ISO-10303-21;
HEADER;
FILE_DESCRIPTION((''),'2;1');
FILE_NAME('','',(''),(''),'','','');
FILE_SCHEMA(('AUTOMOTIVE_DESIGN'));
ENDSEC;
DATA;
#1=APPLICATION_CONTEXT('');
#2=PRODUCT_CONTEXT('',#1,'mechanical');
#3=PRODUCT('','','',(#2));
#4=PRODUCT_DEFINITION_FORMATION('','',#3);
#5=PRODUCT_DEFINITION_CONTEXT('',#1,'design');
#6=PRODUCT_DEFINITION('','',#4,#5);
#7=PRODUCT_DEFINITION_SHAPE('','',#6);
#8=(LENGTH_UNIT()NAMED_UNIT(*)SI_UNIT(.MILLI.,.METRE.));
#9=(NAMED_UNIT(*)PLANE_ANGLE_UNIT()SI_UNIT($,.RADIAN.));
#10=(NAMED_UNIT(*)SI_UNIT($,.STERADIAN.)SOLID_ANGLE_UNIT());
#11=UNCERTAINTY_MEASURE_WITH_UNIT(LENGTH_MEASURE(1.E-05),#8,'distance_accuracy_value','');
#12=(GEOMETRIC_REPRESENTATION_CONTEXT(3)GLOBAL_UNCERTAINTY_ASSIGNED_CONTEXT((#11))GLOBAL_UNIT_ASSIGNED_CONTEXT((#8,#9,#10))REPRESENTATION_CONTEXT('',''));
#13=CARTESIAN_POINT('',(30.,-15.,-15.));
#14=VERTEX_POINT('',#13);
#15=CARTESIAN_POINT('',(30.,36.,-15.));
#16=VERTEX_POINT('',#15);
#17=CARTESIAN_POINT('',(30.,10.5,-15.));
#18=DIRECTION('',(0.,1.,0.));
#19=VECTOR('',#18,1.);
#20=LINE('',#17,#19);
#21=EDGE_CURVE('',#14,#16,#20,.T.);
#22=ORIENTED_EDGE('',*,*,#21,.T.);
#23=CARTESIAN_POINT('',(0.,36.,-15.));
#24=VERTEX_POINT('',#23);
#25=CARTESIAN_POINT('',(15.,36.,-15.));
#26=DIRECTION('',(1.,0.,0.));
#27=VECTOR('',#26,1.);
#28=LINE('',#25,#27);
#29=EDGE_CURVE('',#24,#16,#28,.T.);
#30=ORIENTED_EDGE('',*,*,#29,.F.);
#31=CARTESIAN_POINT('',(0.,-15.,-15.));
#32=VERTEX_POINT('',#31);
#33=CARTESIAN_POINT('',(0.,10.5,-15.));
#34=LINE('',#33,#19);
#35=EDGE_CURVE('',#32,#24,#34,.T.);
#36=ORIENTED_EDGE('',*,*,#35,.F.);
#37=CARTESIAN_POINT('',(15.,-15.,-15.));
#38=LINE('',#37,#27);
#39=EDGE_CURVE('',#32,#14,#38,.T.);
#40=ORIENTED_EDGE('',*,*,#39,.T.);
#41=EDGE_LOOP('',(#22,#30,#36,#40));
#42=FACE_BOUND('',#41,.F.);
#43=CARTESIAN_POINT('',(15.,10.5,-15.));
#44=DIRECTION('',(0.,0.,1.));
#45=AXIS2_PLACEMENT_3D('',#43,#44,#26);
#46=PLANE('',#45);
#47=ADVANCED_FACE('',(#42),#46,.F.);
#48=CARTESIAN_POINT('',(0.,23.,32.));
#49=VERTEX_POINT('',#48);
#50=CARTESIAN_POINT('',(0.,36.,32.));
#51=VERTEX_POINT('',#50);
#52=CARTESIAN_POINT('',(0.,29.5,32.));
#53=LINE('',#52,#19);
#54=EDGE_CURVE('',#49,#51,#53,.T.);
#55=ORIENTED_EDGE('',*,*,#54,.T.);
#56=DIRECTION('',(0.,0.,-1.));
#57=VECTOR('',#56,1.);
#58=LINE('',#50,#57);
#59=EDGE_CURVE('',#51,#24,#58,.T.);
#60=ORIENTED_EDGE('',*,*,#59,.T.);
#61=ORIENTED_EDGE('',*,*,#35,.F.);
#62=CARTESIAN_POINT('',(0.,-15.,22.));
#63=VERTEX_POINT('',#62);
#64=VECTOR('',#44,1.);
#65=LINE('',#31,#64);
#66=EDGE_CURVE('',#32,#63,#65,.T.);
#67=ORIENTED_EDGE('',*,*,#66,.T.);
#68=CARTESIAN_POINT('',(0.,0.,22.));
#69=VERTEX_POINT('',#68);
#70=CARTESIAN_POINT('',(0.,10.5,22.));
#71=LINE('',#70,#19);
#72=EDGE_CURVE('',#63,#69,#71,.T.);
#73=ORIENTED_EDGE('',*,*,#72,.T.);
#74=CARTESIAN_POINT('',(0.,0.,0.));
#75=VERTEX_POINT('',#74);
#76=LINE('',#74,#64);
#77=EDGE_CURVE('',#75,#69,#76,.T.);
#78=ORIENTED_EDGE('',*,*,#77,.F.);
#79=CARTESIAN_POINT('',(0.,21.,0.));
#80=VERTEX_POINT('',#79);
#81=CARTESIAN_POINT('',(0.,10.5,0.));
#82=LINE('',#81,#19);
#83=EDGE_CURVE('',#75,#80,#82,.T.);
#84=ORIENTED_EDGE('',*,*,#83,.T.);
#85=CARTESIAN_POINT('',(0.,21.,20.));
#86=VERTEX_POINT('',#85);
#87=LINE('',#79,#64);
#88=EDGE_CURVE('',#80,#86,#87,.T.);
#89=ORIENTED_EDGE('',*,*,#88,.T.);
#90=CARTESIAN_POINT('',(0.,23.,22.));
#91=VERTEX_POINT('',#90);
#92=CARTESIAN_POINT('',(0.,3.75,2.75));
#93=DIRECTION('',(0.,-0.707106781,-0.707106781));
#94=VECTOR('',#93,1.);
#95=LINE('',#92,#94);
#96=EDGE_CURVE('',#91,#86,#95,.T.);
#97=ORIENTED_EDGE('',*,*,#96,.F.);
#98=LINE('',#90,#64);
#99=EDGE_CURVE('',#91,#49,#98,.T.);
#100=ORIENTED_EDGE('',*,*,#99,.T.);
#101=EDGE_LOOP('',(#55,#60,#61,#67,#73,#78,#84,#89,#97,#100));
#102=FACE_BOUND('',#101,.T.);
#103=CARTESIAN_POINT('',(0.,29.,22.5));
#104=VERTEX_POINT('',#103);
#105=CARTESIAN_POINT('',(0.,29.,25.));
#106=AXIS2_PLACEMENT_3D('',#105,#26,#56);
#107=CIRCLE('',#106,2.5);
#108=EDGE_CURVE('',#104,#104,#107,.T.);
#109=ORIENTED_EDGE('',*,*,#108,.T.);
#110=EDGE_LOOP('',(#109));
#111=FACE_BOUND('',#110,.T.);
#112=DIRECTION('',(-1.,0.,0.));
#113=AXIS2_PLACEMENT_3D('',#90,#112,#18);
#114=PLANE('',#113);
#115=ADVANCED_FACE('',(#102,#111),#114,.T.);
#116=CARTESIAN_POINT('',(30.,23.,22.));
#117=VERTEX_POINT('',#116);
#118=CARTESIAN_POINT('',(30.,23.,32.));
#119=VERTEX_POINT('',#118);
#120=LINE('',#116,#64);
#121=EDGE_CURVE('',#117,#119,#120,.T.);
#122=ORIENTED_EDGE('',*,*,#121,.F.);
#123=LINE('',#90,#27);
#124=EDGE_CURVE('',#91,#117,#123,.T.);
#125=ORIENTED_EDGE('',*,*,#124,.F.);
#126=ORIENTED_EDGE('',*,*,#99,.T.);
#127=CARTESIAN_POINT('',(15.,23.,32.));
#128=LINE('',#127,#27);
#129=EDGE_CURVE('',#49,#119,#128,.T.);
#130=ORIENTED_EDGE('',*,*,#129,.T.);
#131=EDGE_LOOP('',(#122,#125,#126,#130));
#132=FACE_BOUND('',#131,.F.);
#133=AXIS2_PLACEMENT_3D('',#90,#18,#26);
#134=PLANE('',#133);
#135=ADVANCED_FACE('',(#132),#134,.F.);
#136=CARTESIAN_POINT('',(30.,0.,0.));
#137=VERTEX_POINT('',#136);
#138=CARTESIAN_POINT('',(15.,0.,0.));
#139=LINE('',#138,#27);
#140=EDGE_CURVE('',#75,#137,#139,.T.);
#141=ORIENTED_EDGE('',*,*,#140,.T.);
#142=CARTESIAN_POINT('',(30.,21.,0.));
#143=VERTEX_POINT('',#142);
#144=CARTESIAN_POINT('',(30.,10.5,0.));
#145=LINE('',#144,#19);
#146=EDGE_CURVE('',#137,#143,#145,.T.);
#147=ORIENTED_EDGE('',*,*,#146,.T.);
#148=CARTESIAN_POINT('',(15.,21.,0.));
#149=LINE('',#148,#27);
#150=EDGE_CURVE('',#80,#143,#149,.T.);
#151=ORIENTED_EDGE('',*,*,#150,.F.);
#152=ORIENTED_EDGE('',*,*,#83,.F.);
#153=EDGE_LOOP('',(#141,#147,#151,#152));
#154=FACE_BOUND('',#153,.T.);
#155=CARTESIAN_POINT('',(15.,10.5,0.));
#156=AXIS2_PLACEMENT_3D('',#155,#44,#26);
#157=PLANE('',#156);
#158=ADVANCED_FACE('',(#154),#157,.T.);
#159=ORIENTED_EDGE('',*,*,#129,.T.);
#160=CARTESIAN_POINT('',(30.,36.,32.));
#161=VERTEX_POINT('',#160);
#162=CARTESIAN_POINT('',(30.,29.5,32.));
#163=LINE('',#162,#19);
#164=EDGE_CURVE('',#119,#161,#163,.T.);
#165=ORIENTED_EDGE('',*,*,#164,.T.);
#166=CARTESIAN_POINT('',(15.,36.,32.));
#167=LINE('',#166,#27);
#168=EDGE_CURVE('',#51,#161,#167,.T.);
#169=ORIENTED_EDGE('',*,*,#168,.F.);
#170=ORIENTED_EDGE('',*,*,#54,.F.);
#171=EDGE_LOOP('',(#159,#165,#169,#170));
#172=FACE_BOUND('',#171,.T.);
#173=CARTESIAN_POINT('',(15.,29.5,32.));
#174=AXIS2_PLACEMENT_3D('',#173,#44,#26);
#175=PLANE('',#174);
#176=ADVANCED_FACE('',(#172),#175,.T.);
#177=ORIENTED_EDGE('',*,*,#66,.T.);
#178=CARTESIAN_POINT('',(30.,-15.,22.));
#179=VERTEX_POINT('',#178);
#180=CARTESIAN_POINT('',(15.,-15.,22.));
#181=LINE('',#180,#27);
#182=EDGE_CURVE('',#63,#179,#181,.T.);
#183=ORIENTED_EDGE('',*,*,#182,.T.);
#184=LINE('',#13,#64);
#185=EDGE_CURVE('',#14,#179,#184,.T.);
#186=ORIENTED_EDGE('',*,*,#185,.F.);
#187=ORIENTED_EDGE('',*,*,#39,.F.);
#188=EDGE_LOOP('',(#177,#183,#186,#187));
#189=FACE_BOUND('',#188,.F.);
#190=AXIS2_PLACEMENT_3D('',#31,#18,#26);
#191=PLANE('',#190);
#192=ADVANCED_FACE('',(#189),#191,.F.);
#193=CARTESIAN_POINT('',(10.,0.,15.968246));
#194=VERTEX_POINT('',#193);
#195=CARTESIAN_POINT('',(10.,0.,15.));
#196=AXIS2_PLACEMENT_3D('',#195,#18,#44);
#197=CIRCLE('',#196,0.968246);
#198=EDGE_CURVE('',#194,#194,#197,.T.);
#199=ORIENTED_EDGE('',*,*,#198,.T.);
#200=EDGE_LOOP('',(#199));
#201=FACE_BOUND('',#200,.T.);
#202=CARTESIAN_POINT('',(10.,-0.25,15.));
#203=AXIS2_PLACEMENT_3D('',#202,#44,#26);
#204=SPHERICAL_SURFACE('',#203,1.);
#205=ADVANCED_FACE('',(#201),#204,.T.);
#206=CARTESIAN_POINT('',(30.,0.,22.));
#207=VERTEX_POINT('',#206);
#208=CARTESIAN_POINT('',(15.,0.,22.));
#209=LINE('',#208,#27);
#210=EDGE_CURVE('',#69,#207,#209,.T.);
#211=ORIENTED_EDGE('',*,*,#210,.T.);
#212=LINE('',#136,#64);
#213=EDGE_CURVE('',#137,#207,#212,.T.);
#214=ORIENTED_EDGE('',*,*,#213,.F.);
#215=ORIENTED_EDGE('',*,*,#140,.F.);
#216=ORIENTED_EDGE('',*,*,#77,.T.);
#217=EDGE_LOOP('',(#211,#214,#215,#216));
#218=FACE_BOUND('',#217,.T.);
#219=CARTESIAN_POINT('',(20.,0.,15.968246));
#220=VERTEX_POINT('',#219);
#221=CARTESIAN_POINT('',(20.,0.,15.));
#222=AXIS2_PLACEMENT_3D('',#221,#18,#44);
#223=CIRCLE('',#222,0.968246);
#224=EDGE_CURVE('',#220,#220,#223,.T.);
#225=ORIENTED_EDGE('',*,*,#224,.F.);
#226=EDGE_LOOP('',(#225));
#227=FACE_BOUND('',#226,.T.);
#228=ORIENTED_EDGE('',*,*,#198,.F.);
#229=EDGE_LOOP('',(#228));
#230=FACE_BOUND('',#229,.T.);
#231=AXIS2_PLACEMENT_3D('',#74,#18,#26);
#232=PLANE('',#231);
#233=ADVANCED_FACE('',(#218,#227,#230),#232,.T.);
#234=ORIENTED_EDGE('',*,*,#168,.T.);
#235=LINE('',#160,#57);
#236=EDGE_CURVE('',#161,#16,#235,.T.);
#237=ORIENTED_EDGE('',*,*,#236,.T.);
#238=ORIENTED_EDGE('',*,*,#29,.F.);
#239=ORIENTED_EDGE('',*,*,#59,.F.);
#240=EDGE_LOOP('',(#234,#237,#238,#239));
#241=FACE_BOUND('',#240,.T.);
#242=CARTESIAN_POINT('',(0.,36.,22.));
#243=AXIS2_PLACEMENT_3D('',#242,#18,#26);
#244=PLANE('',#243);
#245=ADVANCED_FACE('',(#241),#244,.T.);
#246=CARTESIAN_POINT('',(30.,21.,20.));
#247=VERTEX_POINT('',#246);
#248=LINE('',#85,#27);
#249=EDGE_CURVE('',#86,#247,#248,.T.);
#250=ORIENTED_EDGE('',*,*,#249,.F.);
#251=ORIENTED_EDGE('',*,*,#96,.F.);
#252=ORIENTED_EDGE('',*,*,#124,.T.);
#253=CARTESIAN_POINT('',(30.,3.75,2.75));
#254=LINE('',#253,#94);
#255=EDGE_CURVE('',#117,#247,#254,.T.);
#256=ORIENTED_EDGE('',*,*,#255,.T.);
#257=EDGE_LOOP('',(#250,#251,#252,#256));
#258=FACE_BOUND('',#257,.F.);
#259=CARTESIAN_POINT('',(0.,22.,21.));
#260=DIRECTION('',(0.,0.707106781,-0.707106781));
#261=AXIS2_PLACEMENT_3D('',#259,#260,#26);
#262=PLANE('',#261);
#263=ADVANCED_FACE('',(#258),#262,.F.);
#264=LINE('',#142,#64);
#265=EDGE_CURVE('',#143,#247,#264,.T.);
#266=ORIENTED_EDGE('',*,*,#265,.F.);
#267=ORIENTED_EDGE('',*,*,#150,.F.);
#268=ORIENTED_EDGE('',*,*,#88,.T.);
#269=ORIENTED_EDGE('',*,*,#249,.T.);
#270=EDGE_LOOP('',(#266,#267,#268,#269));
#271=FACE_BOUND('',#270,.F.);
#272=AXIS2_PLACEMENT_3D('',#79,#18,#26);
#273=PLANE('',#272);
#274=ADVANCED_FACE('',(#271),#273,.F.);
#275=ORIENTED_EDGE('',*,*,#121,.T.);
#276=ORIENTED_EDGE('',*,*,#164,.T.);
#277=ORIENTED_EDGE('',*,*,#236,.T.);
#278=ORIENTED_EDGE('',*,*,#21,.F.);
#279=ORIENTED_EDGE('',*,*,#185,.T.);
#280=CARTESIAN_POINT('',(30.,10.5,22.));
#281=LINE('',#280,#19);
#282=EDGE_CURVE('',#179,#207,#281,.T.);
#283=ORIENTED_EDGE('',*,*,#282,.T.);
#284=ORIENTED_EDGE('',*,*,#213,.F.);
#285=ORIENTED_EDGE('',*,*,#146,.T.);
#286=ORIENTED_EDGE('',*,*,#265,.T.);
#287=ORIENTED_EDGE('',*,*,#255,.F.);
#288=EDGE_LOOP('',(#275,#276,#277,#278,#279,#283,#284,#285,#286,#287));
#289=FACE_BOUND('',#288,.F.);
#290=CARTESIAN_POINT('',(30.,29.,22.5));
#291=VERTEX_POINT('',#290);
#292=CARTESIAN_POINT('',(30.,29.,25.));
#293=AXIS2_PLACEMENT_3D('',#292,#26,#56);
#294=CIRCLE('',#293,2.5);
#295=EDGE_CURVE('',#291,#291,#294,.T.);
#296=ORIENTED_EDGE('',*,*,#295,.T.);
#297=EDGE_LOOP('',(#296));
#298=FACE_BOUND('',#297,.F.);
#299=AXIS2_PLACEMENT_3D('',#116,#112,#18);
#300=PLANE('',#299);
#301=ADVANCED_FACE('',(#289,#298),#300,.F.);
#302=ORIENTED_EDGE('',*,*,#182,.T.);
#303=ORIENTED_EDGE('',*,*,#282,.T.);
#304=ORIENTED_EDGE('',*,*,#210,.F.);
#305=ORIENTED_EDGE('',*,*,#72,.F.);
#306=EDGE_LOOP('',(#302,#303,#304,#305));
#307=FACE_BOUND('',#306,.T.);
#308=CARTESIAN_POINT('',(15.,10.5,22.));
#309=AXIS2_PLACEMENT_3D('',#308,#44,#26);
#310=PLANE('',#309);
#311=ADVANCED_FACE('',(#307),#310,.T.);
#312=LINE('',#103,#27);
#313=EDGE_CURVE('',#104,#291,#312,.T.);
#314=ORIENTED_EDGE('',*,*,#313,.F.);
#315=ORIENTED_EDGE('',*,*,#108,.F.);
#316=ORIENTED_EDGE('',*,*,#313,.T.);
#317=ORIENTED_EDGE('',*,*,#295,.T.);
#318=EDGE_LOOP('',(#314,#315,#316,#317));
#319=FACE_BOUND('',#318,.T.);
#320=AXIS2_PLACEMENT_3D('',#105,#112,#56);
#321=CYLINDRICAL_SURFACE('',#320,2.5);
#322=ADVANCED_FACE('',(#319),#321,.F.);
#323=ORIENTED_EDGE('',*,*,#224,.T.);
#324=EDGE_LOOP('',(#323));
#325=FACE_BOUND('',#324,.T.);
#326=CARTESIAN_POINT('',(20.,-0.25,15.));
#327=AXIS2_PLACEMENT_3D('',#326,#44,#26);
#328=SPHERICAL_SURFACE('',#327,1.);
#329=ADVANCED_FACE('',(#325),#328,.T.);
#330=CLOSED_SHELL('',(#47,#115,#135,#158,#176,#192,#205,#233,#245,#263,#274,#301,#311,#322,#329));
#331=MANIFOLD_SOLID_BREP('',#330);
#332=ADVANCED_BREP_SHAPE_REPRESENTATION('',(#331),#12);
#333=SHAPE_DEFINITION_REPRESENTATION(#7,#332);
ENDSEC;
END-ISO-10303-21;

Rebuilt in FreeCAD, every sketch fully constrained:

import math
import FreeCAD as App
import Part
import Sketcher
Q = App.Units.Quantity


def edges_at(feature, points):
    """Names of the edges that pass closest to the given points."""
    edges = feature.Shape.Edges
    near = lambda p: min(range(len(edges)), key=lambda i: edges[i].distToShape(Part.Vertex(*p))[0])
    return sorted({f"Edge{near(p) + 1}" for p in points})

doc = App.newDocument("Part")
body = doc.addObject("PartDesign::Body", "Body")

# Sketch on XZ plane
sketch1 = body.newObject("Sketcher::SketchObject", "Sketch")
sketch1.AttachmentSupport = (doc.getObject("XZ_Plane"), [""])
sketch1.MapMode = "FlatFace"
sketch1.AttachmentOffset = App.Placement(App.Vector(0, 0, 0.25), App.Rotation())
sketch1.addGeometry(Part.ArcOfCircle(Part.Circle(App.Vector(20, 15, 0), App.Vector(0, 0, 1), 1), math.radians(-90), math.radians(90)), False)
sketch1.addGeometry(Part.LineSegment(App.Vector(20, 16, 0), App.Vector(20, 14, 0)), False)
sketch1.addGeometry(Part.LineSegment(App.Vector(20, 14, 0), App.Vector(20, 16, 0)), True)  # axis
sketch1.addConstraint(Sketcher.Constraint("Coincident", 0, 1, 1, 2))
sketch1.addConstraint(Sketcher.Constraint("Coincident", 1, 1, 0, 2))
sketch1.addConstraint(Sketcher.Constraint("Vertical", 1))
sketch1.addConstraint(Sketcher.Constraint("Vertical", 2))
sketch1.addConstraint(Sketcher.Constraint("Coincident", 2, 1, 0, 1))
sketch1.addConstraint(Sketcher.Constraint("Equal", 1, 2))
sketch1.addConstraint(Sketcher.Constraint("Radius", 0, Q("1 mm")))
sketch1.addConstraint(Sketcher.Constraint("DistanceX", -1, 1, 0, 3, Q("20 mm")))
sketch1.addConstraint(Sketcher.Constraint("DistanceY", -1, 1, 0, 3, Q("15 mm")))
sketch1.addConstraint(Sketcher.Constraint("DistanceX", -1, 1, 0, 1, Q("20 mm")))
revolution = body.newObject("PartDesign::Revolution", "Revolution")
revolution.Profile = sketch1
revolution.ReferenceAxis = (sketch1, ["Axis0"])
revolution.Angle = 360
body2 = doc.addObject("PartDesign::Body", "Body001")

# Sketch on XZ plane
sketch2 = body2.newObject("Sketcher::SketchObject", "Sketch001")
sketch2.AttachmentSupport = (doc.getObject("XZ_Plane001"), [""])
sketch2.MapMode = "FlatFace"
sketch2.AttachmentOffset = App.Placement(App.Vector(0, 0, 0.25), App.Rotation())
sketch2.addGeometry(Part.ArcOfCircle(Part.Circle(App.Vector(10, 15, 0), App.Vector(0, 0, 1), 1), math.radians(-90), math.radians(90)), False)
sketch2.addGeometry(Part.LineSegment(App.Vector(10, 16, 0), App.Vector(10, 14, 0)), False)
sketch2.addGeometry(Part.LineSegment(App.Vector(10, 14, 0), App.Vector(10, 16, 0)), True)  # axis
sketch2.addConstraint(Sketcher.Constraint("Coincident", 0, 1, 1, 2))
sketch2.addConstraint(Sketcher.Constraint("Coincident", 1, 1, 0, 2))
sketch2.addConstraint(Sketcher.Constraint("Vertical", 1))
sketch2.addConstraint(Sketcher.Constraint("Vertical", 2))
sketch2.addConstraint(Sketcher.Constraint("Coincident", 2, 1, 0, 1))
sketch2.addConstraint(Sketcher.Constraint("Equal", 1, 2))
sketch2.addConstraint(Sketcher.Constraint("Radius", 0, Q("1 mm")))
sketch2.addConstraint(Sketcher.Constraint("DistanceX", -1, 1, 0, 3, Q("10 mm")))
sketch2.addConstraint(Sketcher.Constraint("DistanceY", -1, 1, 0, 3, Q("15 mm")))
sketch2.addConstraint(Sketcher.Constraint("DistanceX", -1, 1, 0, 1, Q("10 mm")))
revolution2 = body2.newObject("PartDesign::Revolution", "Revolution001")
revolution2.Profile = sketch2
revolution2.ReferenceAxis = (sketch2, ["Axis0"])
revolution2.Angle = 360
body3 = doc.addObject("PartDesign::Body", "Body002")

# Sketch on YZ plane
sketch3 = body3.newObject("Sketcher::SketchObject", "Sketch002")
sketch3.AttachmentSupport = (doc.getObject("YZ_Plane002"), [""])
sketch3.MapMode = "FlatFace"
sketch3.addGeometry(Part.Circle(App.Vector(29, 25, 0), App.Vector(0, 0, 1), 2.5), False)
sketch3.addConstraint(Sketcher.Constraint("Diameter", 0, Q("5 mm")))
sketch3.addConstraint(Sketcher.Constraint("DistanceX", -1, 1, 0, 3, Q("29 mm")))
sketch3.addConstraint(Sketcher.Constraint("DistanceY", -1, 1, 0, 3, Q("25 mm")))
pad1 = body3.newObject("PartDesign::Pad", "Pad")
pad1.Profile = sketch3
pad1.Length = 30
body4 = doc.addObject("PartDesign::Body", "Body003")

# Sketch on XY plane
sketch4 = body4.newObject("Sketcher::SketchObject", "Sketch003")
sketch4.AttachmentSupport = (doc.getObject("XY_Plane003"), [""])
sketch4.MapMode = "FlatFace"
sketch4.AttachmentOffset = App.Placement(App.Vector(0, 0, 22), App.Rotation())
sketch4.addGeometry(Part.LineSegment(App.Vector(0, 36, 0), App.Vector(0, 23, 0)), False)
sketch4.addGeometry(Part.LineSegment(App.Vector(0, 23, 0), App.Vector(30, 23, 0)), False)
sketch4.addGeometry(Part.LineSegment(App.Vector(30, 23, 0), App.Vector(30, 36, 0)), False)
sketch4.addGeometry(Part.LineSegment(App.Vector(30, 36, 0), App.Vector(0, 36, 0)), False)
sketch4.addConstraint(Sketcher.Constraint("Coincident", 0, 2, 1, 1))
sketch4.addConstraint(Sketcher.Constraint("Coincident", 1, 2, 2, 1))
sketch4.addConstraint(Sketcher.Constraint("Coincident", 2, 2, 3, 1))
sketch4.addConstraint(Sketcher.Constraint("Coincident", 3, 2, 0, 1))
sketch4.addConstraint(Sketcher.Constraint("Vertical", 0))
sketch4.addConstraint(Sketcher.Constraint("Horizontal", 1))
sketch4.addConstraint(Sketcher.Constraint("Vertical", 2))
sketch4.addConstraint(Sketcher.Constraint("Horizontal", 3))
sketch4.addConstraint(Sketcher.Constraint("PointOnObject", 0, 2, -2))
sketch4.addConstraint(Sketcher.Constraint("DistanceX", 1, 1, 1, 2, Q("30 mm")))
sketch4.addConstraint(Sketcher.Constraint("DistanceY", 0, 2, 0, 1, Q("13 mm")))
sketch4.addConstraint(Sketcher.Constraint("DistanceY", -1, 1, 0, 2, Q("23 mm")))
pad2 = body4.newObject("PartDesign::Pad", "Pad001")
pad2.Profile = sketch4
pad2.Length = 10
doc.recompute()

boolean = body4.newObject("PartDesign::Boolean", "Boolean")
boolean.Type = "Cut"
boolean.addObjects([body3])
body5 = doc.addObject("PartDesign::Body", "Body004")

# Sketch on XY plane
sketch5 = body5.newObject("Sketcher::SketchObject", "Sketch004")
sketch5.AttachmentSupport = (doc.getObject("XY_Plane004"), [""])
sketch5.MapMode = "FlatFace"
sketch5.addGeometry(Part.LineSegment(App.Vector(0, 21, 0), App.Vector(0, 0, 0)), False)
sketch5.addGeometry(Part.LineSegment(App.Vector(0, 0, 0), App.Vector(30, 0, 0)), False)
sketch5.addGeometry(Part.LineSegment(App.Vector(30, 0, 0), App.Vector(30, 21, 0)), False)
sketch5.addGeometry(Part.LineSegment(App.Vector(30, 21, 0), App.Vector(0, 21, 0)), False)
sketch5.addConstraint(Sketcher.Constraint("Coincident", 0, 2, 1, 1))
sketch5.addConstraint(Sketcher.Constraint("Coincident", 1, 2, 2, 1))
sketch5.addConstraint(Sketcher.Constraint("Coincident", 2, 2, 3, 1))
sketch5.addConstraint(Sketcher.Constraint("Coincident", 3, 2, 0, 1))
sketch5.addConstraint(Sketcher.Constraint("Vertical", 0))
sketch5.addConstraint(Sketcher.Constraint("Horizontal", 1))
sketch5.addConstraint(Sketcher.Constraint("Vertical", 2))
sketch5.addConstraint(Sketcher.Constraint("Horizontal", 3))
sketch5.addConstraint(Sketcher.Constraint("Coincident", 0, 2, -1, 1))
sketch5.addConstraint(Sketcher.Constraint("DistanceX", 1, 1, 1, 2, Q("30 mm")))
sketch5.addConstraint(Sketcher.Constraint("DistanceY", 0, 2, 0, 1, Q("21 mm")))
pad3 = body5.newObject("PartDesign::Pad", "Pad002")
pad3.Profile = sketch5
pad3.Length = 22
body6 = doc.addObject("PartDesign::Body", "Body005")

# Sketch on XY plane
sketch6 = body6.newObject("Sketcher::SketchObject", "Sketch005")
sketch6.AttachmentSupport = (doc.getObject("XY_Plane005"), [""])
sketch6.MapMode = "FlatFace"
sketch6.AttachmentOffset = App.Placement(App.Vector(0, 0, -15), App.Rotation())
sketch6.addGeometry(Part.LineSegment(App.Vector(0, 36, 0), App.Vector(0, -15, 0)), False)
sketch6.addGeometry(Part.LineSegment(App.Vector(0, -15, 0), App.Vector(30, -15, 0)), False)
sketch6.addGeometry(Part.LineSegment(App.Vector(30, -15, 0), App.Vector(30, 36, 0)), False)
sketch6.addGeometry(Part.LineSegment(App.Vector(30, 36, 0), App.Vector(0, 36, 0)), False)
sketch6.addConstraint(Sketcher.Constraint("Coincident", 0, 2, 1, 1))
sketch6.addConstraint(Sketcher.Constraint("Coincident", 1, 2, 2, 1))
sketch6.addConstraint(Sketcher.Constraint("Coincident", 2, 2, 3, 1))
sketch6.addConstraint(Sketcher.Constraint("Coincident", 3, 2, 0, 1))
sketch6.addConstraint(Sketcher.Constraint("Vertical", 0))
sketch6.addConstraint(Sketcher.Constraint("Horizontal", 1))
sketch6.addConstraint(Sketcher.Constraint("Vertical", 2))
sketch6.addConstraint(Sketcher.Constraint("Horizontal", 3))
sketch6.addConstraint(Sketcher.Constraint("PointOnObject", 0, 2, -2))
sketch6.addConstraint(Sketcher.Constraint("DistanceX", 1, 1, 1, 2, Q("30 mm")))
sketch6.addConstraint(Sketcher.Constraint("DistanceY", 0, 2, 0, 1, Q("51 mm")))
sketch6.addConstraint(Sketcher.Constraint("DistanceY", 0, 2, -1, 1, Q("15 mm")))
pad4 = body6.newObject("PartDesign::Pad", "Pad003")
pad4.Profile = sketch6
pad4.Length = 37
doc.recompute()

boolean2 = body6.newObject("PartDesign::Boolean", "Boolean001")
boolean2.Type = "Cut"
boolean2.addObjects([body5])
doc.recompute()

chamfer = body6.newObject("PartDesign::Chamfer", "Chamfer")
chamfer.Base = (boolean2, edges_at(boolean2, [(15, 21, 22)]))
chamfer.Size = 2
doc.recompute()

boolean3 = body6.newObject("PartDesign::Boolean", "Boolean002")
boolean3.Type = "Fuse"
boolean3.addObjects([body4])
doc.recompute()

boolean4 = body6.newObject("PartDesign::Boolean", "Boolean003")
boolean4.Type = "Fuse"
boolean4.addObjects([body])
doc.recompute()

boolean5 = body6.newObject("PartDesign::Boolean", "Boolean004")
boolean5.Type = "Fuse"
boolean5.addObjects([body2])

doc.recompute()
